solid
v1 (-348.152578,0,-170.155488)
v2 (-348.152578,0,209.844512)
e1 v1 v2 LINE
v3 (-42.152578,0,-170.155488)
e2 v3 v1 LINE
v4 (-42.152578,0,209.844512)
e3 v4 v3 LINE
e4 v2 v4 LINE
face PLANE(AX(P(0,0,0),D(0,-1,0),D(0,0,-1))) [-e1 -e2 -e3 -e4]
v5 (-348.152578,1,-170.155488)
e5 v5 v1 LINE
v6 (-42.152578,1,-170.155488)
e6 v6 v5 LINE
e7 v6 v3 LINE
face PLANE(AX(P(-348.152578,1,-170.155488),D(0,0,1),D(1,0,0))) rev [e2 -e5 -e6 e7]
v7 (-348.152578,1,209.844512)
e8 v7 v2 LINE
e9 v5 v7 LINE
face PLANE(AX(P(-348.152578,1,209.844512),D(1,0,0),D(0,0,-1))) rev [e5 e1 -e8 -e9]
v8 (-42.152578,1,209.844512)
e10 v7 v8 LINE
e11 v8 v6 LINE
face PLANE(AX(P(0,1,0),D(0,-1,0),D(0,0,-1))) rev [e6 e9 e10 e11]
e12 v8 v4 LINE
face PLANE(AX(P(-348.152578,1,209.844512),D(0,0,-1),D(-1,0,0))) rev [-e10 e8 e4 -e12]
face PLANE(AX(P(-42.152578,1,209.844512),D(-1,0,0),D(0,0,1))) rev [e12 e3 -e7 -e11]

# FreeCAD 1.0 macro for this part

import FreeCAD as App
import Part
import Sketcher

V = App.Vector


def add_polygon(sketch, points):
    """Adds a closed chain of lines whose ends are joined by coincident constraints."""
    first, n = sketch.GeometryCount, len(points)
    for a, b in zip(points, points[1:] + points[:1]):
        sketch.addGeometry(Part.LineSegment(App.Vector(*a, 0), App.Vector(*b, 0)), False)
    for i in range(n):
        sketch.addConstraint(Sketcher.Constraint("Coincident", first + i, 2, first + (i + 1) % n, 1))

doc = App.newDocument("Part")
body = doc.addObject("PartDesign::Body", "Body")

# Sketch on XZ plane
sketch1 = body.newObject("Sketcher::SketchObject", "Sketch")
sketch1.AttachmentSupport = (doc.getObject("XZ_Plane"), [""])
sketch1.MapMode = "FlatFace"
add_polygon(sketch1, [(-348.152578, -170.155488), (-348.152578, 209.844512), (-42.152578, 209.844512), (-42.152578, -170.155488)])  # lines 0-3
sketch1.addConstraint([
    Sketcher.Constraint("Vertical", 0),
    Sketcher.Constraint("Horizontal", 1),
    Sketcher.Constraint("Vertical", 2),
    Sketcher.Constraint("Horizontal", 3),
    Sketcher.Constraint("DistanceX", 1, 1, 1, 2, 306.0),
    Sketcher.Constraint("DistanceY", 0, 1, 0, 2, 380.0),
    Sketcher.Constraint("DistanceY", -1, 1, 0, 2, 209.844512),
    Sketcher.Constraint("DistanceX", 0, 2, -1, 1, 348.152578),
])
pad1 = body.newObject("PartDesign::Pad", "Pad")
pad1.Profile = sketch1
pad1.Length = 1
pad1.Reversed = True

doc.recompute()
